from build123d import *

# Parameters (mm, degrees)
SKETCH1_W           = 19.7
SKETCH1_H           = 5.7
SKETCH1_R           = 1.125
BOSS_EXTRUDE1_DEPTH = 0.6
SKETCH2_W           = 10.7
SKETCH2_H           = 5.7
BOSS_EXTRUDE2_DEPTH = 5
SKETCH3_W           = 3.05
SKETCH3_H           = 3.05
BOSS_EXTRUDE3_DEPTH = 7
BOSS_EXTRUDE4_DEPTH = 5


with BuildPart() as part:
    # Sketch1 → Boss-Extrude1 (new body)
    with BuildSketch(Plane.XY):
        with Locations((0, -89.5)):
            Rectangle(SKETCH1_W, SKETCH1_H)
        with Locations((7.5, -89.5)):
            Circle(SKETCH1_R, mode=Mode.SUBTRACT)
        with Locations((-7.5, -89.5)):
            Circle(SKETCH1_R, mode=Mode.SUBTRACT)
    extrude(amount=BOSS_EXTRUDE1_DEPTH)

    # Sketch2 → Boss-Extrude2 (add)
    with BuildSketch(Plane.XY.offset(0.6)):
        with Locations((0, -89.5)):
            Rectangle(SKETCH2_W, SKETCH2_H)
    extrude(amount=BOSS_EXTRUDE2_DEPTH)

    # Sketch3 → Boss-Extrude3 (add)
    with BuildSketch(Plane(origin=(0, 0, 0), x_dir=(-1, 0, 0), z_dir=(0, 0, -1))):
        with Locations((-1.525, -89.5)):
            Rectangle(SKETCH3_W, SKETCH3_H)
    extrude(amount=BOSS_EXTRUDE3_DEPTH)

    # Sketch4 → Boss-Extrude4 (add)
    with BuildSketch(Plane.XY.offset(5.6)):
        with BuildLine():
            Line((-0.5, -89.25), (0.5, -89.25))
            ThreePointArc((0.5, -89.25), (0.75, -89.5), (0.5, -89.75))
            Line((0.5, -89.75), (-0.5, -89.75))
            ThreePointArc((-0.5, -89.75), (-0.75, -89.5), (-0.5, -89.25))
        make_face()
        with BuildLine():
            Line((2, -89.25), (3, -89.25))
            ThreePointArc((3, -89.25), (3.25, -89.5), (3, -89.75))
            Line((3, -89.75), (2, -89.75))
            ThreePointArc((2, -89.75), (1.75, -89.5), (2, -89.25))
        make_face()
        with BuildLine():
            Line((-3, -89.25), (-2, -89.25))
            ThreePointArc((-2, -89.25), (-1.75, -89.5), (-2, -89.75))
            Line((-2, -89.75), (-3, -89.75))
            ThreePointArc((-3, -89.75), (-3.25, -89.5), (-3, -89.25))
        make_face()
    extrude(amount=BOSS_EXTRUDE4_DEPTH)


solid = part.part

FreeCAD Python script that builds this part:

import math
import FreeCAD as App
import Part
import Sketcher
Q = App.Units.Quantity

doc = App.newDocument("Part")
body = doc.addObject("PartDesign::Body", "Body")

sketch1 = body.newObject("Sketcher::SketchObject", "Sketch")
sketch1.AttachmentSupport = (doc.getObject("XY_Plane"), [""])
sketch1.MapMode = "FlatFace"
sketch1.addGeometry(Part.LineSegment(App.Vector(-9.8, -86.7, 0), App.Vector(-9.8, -92.3, 0)), False)
sketch1.addGeometry(Part.LineSegment(App.Vector(-9.8, -92.3, 0), App.Vector(9.8, -92.3, 0)), False)
sketch1.addGeometry(Part.LineSegment(App.Vector(9.8, -92.3, 0), App.Vector(9.8, -86.7, 0)), False)
sketch1.addGeometry(Part.LineSegment(App.Vector(9.8, -86.7, 0), App.Vector(-9.8, -86.7, 0)), False)
sketch1.addGeometry(Part.Circle(App.Vector(-7.5, -89.5, 0), App.Vector(0, 0, 1), 1.1), False)
sketch1.addGeometry(Part.Circle(App.Vector(7.5, -89.5, 0), App.Vector(0, 0, 1), 1.1), False)
sketch1.addConstraint(Sketcher.Constraint("Coincident", 0, 2, 1, 1))
sketch1.addConstraint(Sketcher.Constraint("Coincident", 1, 2, 2, 1))
sketch1.addConstraint(Sketcher.Constraint("Coincident", 2, 2, 3, 1))
sketch1.addConstraint(Sketcher.Constraint("Coincident", 3, 2, 0, 1))
sketch1.addConstraint(Sketcher.Constraint("Vertical", 0))
sketch1.addConstraint(Sketcher.Constraint("Horizontal", 1))
sketch1.addConstraint(Sketcher.Constraint("Vertical", 2))
sketch1.addConstraint(Sketcher.Constraint("Horizontal", 3))
sketch1.addConstraint(Sketcher.Constraint("Equal", 4, 5))
sketch1.addConstraint(Sketcher.Constraint("Symmetric", 4, 3, 5, 3, -2))
sketch1.addConstraint(Sketcher.Constraint("Diameter", 4, Q("2.25 mm")))
sketch1.addConstraint(Sketcher.Constraint("DistanceX", 1, 1, 1, 2, Q("19.7 mm")))
sketch1.addConstraint(Sketcher.Constraint("DistanceY", 0, 2, 0, 1, Q("5.7 mm")))
sketch1.addConstraint(Sketcher.Constraint("DistanceX", 4, 3, 5, 3, Q("15 mm")))
sketch1.addConstraint(Sketcher.Constraint("DistanceY", 4, 3, -1, 1, Q("89.5 mm")))
sketch1.addConstraint(Sketcher.Constraint("DistanceX", 0, 2, -1, 1, Q("9.85 mm")))
sketch1.addConstraint(Sketcher.Constraint("DistanceY", 0, 2, -1, 1, Q("92.35 mm")))
pad1 = body.newObject("PartDesign::Pad", "Pad")
pad1.Profile = sketch1
pad1.Length = 0.6

sketch2 = body.newObject("Sketcher::SketchObject", "Sketch001")
sketch2.AttachmentSupport = (doc.getObject("XY_Plane"), [""])
sketch2.MapMode = "FlatFace"
sketch2.AttachmentOffset = App.Placement(App.Vector(0, 0, 0.6), App.Rotation())
sketch2.addGeometry(Part.LineSegment(App.Vector(-5, -87, 0), App.Vector(-5, -92, 0)), False)
sketch2.addGeometry(Part.LineSegment(App.Vector(-5, -92, 0), App.Vector(5, -92, 0)), False)
sketch2.addGeometry(Part.LineSegment(App.Vector(5, -92, 0), App.Vector(5, -87, 0)), False)
sketch2.addGeometry(Part.LineSegment(App.Vector(5, -87, 0), App.Vector(-5, -87, 0)), False)
sketch2.addConstraint(Sketcher.Constraint("Coincident", 0, 2, 1, 1))
sketch2.addConstraint(Sketcher.Constraint("Coincident", 1, 2, 2, 1))
sketch2.addConstraint(Sketcher.Constraint("Coincident", 2, 2, 3, 1))
sketch2.addConstraint(Sketcher.Constraint("Coincident", 3, 2, 0, 1))
sketch2.addConstraint(Sketcher.Constraint("Vertical", 0))
sketch2.addConstraint(Sketcher.Constraint("Horizontal", 1))
sketch2.addConstraint(Sketcher.Constraint("Vertical", 2))
sketch2.addConstraint(Sketcher.Constraint("Horizontal", 3))
sketch2.addConstraint(Sketcher.Constraint("DistanceX", 1, 1, 1, 2, Q("10.7 mm")))
sketch2.addConstraint(Sketcher.Constraint("DistanceY", 0, 2, 0, 1, Q("5.7 mm")))
sketch2.addConstraint(Sketcher.Constraint("DistanceX", 0, 2, -1, 1, Q("5.35 mm")))
sketch2.addConstraint(Sketcher.Constraint("DistanceY", 0, 2, -1, 1, Q("92.35 mm")))
pad2 = body.newObject("PartDesign::Pad", "Pad001")
pad2.Profile = sketch2
pad2.Length = 5

sketch3 = body.newObject("Sketcher::SketchObject", "Sketch002")
sketch3.AttachmentSupport = (doc.getObject("XY_Plane"), [""])
sketch3.MapMode = "FlatFace"
sketch3.addGeometry(Part.LineSegment(App.Vector(3, -88, 0), App.Vector(3, -91, 0)), False)
sketch3.addGeometry(Part.LineSegment(App.Vector(3, -91, 0), App.Vector(0, -91, 0)), False)
sketch3.addGeometry(Part.LineSegment(App.Vector(0, -91, 0), App.Vector(0, -88, 0)), False)
sketch3.addGeometry(Part.LineSegment(App.Vector(0, -88, 0), App.Vector(3, -88, 0)), False)
sketch3.addConstraint(Sketcher.Constraint("Coincident", 0, 2, 1, 1))
sketch3.addConstraint(Sketcher.Constraint("Coincident", 1, 2, 2, 1))
sketch3.addConstraint(Sketcher.Constraint("Coincident", 2, 2, 3, 1))
sketch3.addConstraint(Sketcher.Constraint("Coincident", 3, 2, 0, 1))
sketch3.addConstraint(Sketcher.Constraint("Vertical", 0))
sketch3.addConstraint(Sketcher.Constraint("Horizontal", 1))
sketch3.addConstraint(Sketcher.Constraint("Vertical", 2))
sketch3.addConstraint(Sketcher.Constraint("Horizontal", 3))
sketch3.addConstraint(Sketcher.Constraint("PointOnObject", 1, 2, -2))
sketch3.addConstraint(Sketcher.Constraint("Equal", 3, 0))
sketch3.addConstraint(Sketcher.Constraint("DistanceX", 1, 2, 1, 1, Q("3.05 mm")))
sketch3.addConstraint(Sketcher.Constraint("DistanceY", 0, 2, -1, 1, Q("91.025 mm")))
pad3 = body.newObject("PartDesign::Pad", "Pad002")
pad3.Profile = sketch3
pad3.Length = 7
pad3.Reversed = True

sketch4 = body.newObject("Sketcher::SketchObject", "Sketch003")
sketch4.AttachmentSupport = (doc.getObject("XY_Plane"), [""])
sketch4.MapMode = "FlatFace"
sketch4.AttachmentOffset = App.Placement(App.Vector(0, 0, 5.6), App.Rotation())
sketch4.addGeometry(Part.LineSegment(App.Vector(0.5, -89.25, 0), App.Vector(-0.5, -89.25, 0)), False)
sketch4.addGeometry(Part.ArcOfCircle(Part.Circle(App.Vector(-0.5, -89.5, 0), App.Vector(0, 0, 1), 0.25), math.radians(90), math.radians(270)), False)
sketch4.addGeometry(Part.LineSegment(App.Vector(-0.5, -89.75, 0), App.Vector(0.5, -89.75, 0)), False)
sketch4.addGeometry(Part.ArcOfCircle(Part.Circle(App.Vector(0.5, -89.5, 0), App.Vector(0, 0, 1), 0.25), math.radians(-90), math.radians(90)), False)
sketch4.addGeometry(Part.LineSegment(App.Vector(3, -89.25, 0), App.Vector(2, -89.25, 0)), False)
sketch4.addGeometry(Part.ArcOfCircle(Part.Circle(App.Vector(2, -89.5, 0), App.Vector(0, 0, 1), 0.25), math.radians(90), math.radians(270)), False)
sketch4.addGeometry(Part.LineSegment(App.Vector(2, -89.75, 0), App.Vector(3, -89.75, 0)), False)
sketch4.addGeometry(Part.ArcOfCircle(Part.Circle(App.Vector(3, -89.5, 0), App.Vector(0, 0, 1), 0.25), math.radians(-90), math.radians(90)), False)
sketch4.addGeometry(Part.LineSegment(App.Vector(-2, -89.25, 0), App.Vector(-3, -89.25, 0)), False)
sketch4.addGeometry(Part.ArcOfCircle(Part.Circle(App.Vector(-3, -89.5, 0), App.Vector(0, 0, 1), 0.25), math.radians(90), math.radians(270)), False)
sketch4.addGeometry(Part.LineSegment(App.Vector(-3, -89.75, 0), App.Vector(-2, -89.75, 0)), False)
sketch4.addGeometry(Part.ArcOfCircle(Part.Circle(App.Vector(-2, -89.5, 0), App.Vector(0, 0, 1), 0.25), math.radians(-90), math.radians(90)), False)
sketch4.addConstraint(Sketcher.Constraint("Tangent", 0, 2, 1, 1))
sketch4.addConstraint(Sketcher.Constraint("Tangent", 1, 2, 2, 1))
sketch4.addConstraint(Sketcher.Constraint("Tangent", 2, 2, 3, 1))
sketch4.addConstraint(Sketcher.Constraint("Tangent", 3, 2, 0, 1))
sketch4.addConstraint(Sketcher.Constraint("Tangent", 4, 2, 5, 1))
sketch4.addConstraint(Sketcher.Constraint("Tangent", 5, 2, 6, 1))
sketch4.addConstraint(Sketcher.Constraint("Tangent", 6, 2, 7, 1))
sketch4.addConstraint(Sketcher.Constraint("Tangent", 7, 2, 4, 1))
sketch4.addConstraint(Sketcher.Constraint("Tangent", 8, 2, 9, 1))
sketch4.addConstraint(Sketcher.Constraint("Tangent", 9, 2, 10, 1))
sketch4.addConstraint(Sketcher.Constraint("Tangent", 10, 2, 11, 1))
sketch4.addConstraint(Sketcher.Constraint("Tangent", 11, 2, 8, 1))
sketch4.addConstraint(Sketcher.Constraint("Horizontal", 0))
sketch4.addConstraint(Sketcher.Constraint("Horizontal", 2))
sketch4.addConstraint(Sketcher.Constraint("Horizontal", 4))
sketch4.addConstraint(Sketcher.Constraint("Horizontal", 6))
sketch4.addConstraint(Sketcher.Constraint("Horizontal", 8))
sketch4.addConstraint(Sketcher.Constraint("Horizontal", 10))
sketch4.addConstraint(Sketcher.Constraint("Equal", 3, 5))
sketch4.addConstraint(Sketcher.Constraint("Equal", 7, 9))
sketch4.addConstraint(Sketcher.Constraint("Symmetric", 7, 3, 9, 3, -2))
sketch4.addConstraint(Sketcher.Constraint("Horizontal", 3, 3, 5, 3))
sketch4.addConstraint(Sketcher.Constraint("Equal", 2, 4))
sketch4.addConstraint(Sketcher.Constraint("Equal", 6, 8))
sketch4.addConstraint(Sketcher.Constraint("DistanceX", 0, 2, 0, 1, Q("1 mm")))
sketch4.addConstraint(Sketcher.Constraint("Radius", 1, Q("0.25 mm")))
sketch4.addConstraint(Sketcher.Constraint("DistanceX", -1, 1, 5, 3, Q("2 mm")))
sketch4.addConstraint(Sketcher.Constraint("DistanceX", 1, 3, -1, 1, Q("0.5 mm")))
sketch4.addConstraint(Sketcher.Constraint("DistanceY", 1, 3, -1, 1, Q("89.5 mm")))
pad4 = body.newObject("PartDesign::Pad", "Pad003")
pad4.Profile = sketch4
pad4.Length = 5

doc.recompute()
